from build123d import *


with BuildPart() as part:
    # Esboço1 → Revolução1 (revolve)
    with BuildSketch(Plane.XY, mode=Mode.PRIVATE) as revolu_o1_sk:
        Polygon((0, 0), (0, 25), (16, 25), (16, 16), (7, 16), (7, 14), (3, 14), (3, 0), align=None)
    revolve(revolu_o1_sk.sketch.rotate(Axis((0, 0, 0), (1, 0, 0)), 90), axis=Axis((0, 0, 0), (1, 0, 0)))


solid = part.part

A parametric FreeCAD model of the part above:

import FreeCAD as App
import Part
import Sketcher

doc = App.newDocument("Part")
params = doc.addObject("Spreadsheet::Sheet", "Params")
for row, (alias, value) in enumerate([
    ("sketch1_width", "3 mm"),
    ("sketch1_width2", "4 mm"),
    ("sketch1_width3", "9 mm"),
    ("sketch1_height", "25 mm"),
    ("sketch1_height2", "14 mm"),
    ("revolution_angle", "360 deg"),
], start=1):
    params.set(f"A{row}", alias)
    params.set(f"B{row}", "=" + value)
    params.setAlias(f"B{row}", alias)

body = doc.addObject("PartDesign::Body", "Body")

# Sketch on XY plane
sketch1 = body.newObject("Sketcher::SketchObject", "Sketch")
sketch1.AttachmentSupport = (doc.getObject("XY_Plane"), [""])
sketch1.MapMode = "FlatFace"
sketch1.addGeometry([
    Part.LineSegment(App.Vector(0, 25, 0), App.Vector(0, 0, 0)),  # 0
    Part.LineSegment(App.Vector(0, 0, 0), App.Vector(3, 0, 0)),  # 1
    Part.LineSegment(App.Vector(3, 0, 0), App.Vector(3, 14, 0)),  # 2
    Part.LineSegment(App.Vector(3, 14, 0), App.Vector(7, 14, 0)),  # 3
    Part.LineSegment(App.Vector(7, 14, 0), App.Vector(7, 16, 0)),  # 4
    Part.LineSegment(App.Vector(7, 16, 0), App.Vector(16, 16, 0)),  # 5
    Part.LineSegment(App.Vector(16, 16, 0), App.Vector(16, 25, 0)),  # 6
    Part.LineSegment(App.Vector(16, 25, 0), App.Vector(0, 25, 0)),  # 7
], False)
sketch1.addConstraint([
    Sketcher.Constraint("Coincident", 0, 2, 1, 1),
    Sketcher.Constraint("Coincident", 1, 2, 2, 1),
    Sketcher.Constraint("Coincident", 2, 2, 3, 1),
    Sketcher.Constraint("Coincident", 3, 2, 4, 1),
    Sketcher.Constraint("Coincident", 4, 2, 5, 1),
    Sketcher.Constraint("Coincident", 5, 2, 6, 1),
    Sketcher.Constraint("Coincident", 6, 2, 7, 1),
    Sketcher.Constraint("Coincident", 7, 2, 0, 1),
    Sketcher.Constraint("Vertical", 0),
    Sketcher.Constraint("Horizontal", 1),
    Sketcher.Constraint("Vertical", 2),
    Sketcher.Constraint("Horizontal", 3),
    Sketcher.Constraint("Vertical", 4),
    Sketcher.Constraint("Horizontal", 5),
    Sketcher.Constraint("Vertical", 6),
    Sketcher.Constraint("Horizontal", 7),
    Sketcher.Constraint("Coincident", 0, 2, -1, 1),
    Sketcher.Constraint("Equal", 5, 6),
    Sketcher.Constraint("DistanceX", 1, 1, 1, 2, 3.0),
    Sketcher.Constraint("DistanceX", 3, 1, 3, 2, 4.0),
    Sketcher.Constraint("DistanceX", 5, 1, 5, 2, 9.0),
    Sketcher.Constraint("DistanceY", 0, 2, 0, 1, 25.0),
    Sketcher.Constraint("DistanceY", 2, 1, 2, 2, 14.0),
])
sketch1.setExpression("Constraints[18]", "Params.sketch1_width")
sketch1.setExpression("Constraints[19]", "Params.sketch1_width2")
sketch1.setExpression("Constraints[20]", "Params.sketch1_width3")
sketch1.setExpression("Constraints[21]", "Params.sketch1_height")
sketch1.setExpression("Constraints[22]", "Params.sketch1_height2")
revolution = body.newObject("PartDesign::Revolution", "Revolution")
revolution.Profile = sketch1
revolution.ReferenceAxis = (sketch1, ["H_Axis"])
revolution.setExpression("Angle", "Params.revolution_angle")

doc.recompute()
